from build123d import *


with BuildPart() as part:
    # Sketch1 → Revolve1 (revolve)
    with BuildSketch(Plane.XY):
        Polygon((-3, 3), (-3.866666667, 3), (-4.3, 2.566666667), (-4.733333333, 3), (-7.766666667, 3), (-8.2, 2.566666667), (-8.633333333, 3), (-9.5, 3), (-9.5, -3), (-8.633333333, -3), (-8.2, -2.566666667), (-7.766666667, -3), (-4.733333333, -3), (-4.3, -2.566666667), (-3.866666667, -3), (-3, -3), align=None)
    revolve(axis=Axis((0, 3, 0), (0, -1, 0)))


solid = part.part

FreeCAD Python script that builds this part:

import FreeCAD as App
import Part
import Sketcher

V = App.Vector
Q = App.Units.Quantity


def add_polygon(sketch, points):
    """Adds a closed chain of lines whose ends are joined by coincident constraints."""
    first, n = sketch.GeometryCount, len(points)
    for a, b in zip(points, points[1:] + points[:1]):
        sketch.addGeometry(Part.LineSegment(App.Vector(*a, 0), App.Vector(*b, 0)), False)
    for i in range(n):
        sketch.addConstraint(Sketcher.Constraint("Coincident", first + i, 2, first + (i + 1) % n, 1))

doc = App.newDocument("Part")
params = doc.addObject("Spreadsheet::Sheet", "Params")
for row, (alias, value) in enumerate([
    ("sketch1_height", "6 mm"),
    ("revolution_angle", "360 deg"),
], start=1):
    params.set(f"A{row}", alias)
    params.set(f"B{row}", "=" + value)
    params.setAlias(f"B{row}", alias)

body = doc.addObject("PartDesign::Body", "Body")

# Sketch on XY plane
sketch1 = doc.addObject("Sketcher::SketchObject", "Sketch")
body.addObject(sketch1)
sketch1.AttachmentSupport = (doc.XY_Plane, [""])
sketch1.MapMode = "FlatFace"
add_polygon(sketch1, [(-3, 3), (-3.9, 3), (-4.3, 2.6), (-4.7, 3), (-7.8, 3), (-8.2, 2.6), (-8.6, 3), (-9.5, 3), (-9.5, -3), (-8.6, -3), (-8.2, -2.6), (-7.8, -3), (-4.7, -3), (-4.3, -2.6), (-3.9, -3), (-3, -3)])  # lines 0-15
sketch1.addConstraint(Sketcher.Constraint("Horizontal", 0))
sketch1.addConstraint(Sketcher.Constraint("Horizontal", 3))
sketch1.addConstraint(Sketcher.Constraint("Horizontal", 6))
sketch1.addConstraint(Sketcher.Constraint("Vertical", 7))
sketch1.addConstraint(Sketcher.Constraint("Horizontal", 8))
sketch1.addConstraint(Sketcher.Constraint("Horizontal", 11))
sketch1.addConstraint(Sketcher.Constraint("Horizontal", 14))
sketch1.addConstraint(Sketcher.Constraint("Vertical", 15))
sketch1.addConstraint(Sketcher.Constraint("Symmetric", 5, 2, 8, 2, -1))
sketch1.addConstraint(Sketcher.Constraint("Symmetric", 4, 2, 9, 2, -1))
sketch1.addConstraint(Sketcher.Constraint("Symmetric", 3, 2, 10, 2, -1))
sketch1.addConstraint(Sketcher.Constraint("Symmetric", 1, 2, 12, 2, -1))
sketch1.addConstraint(Sketcher.Constraint("Symmetric", 0, 2, 13, 2, -1))
sketch1.addConstraint(Sketcher.Constraint("Perpendicular", 1, 2))
sketch1.addConstraint(Sketcher.Constraint("Perpendicular", 2, 4))
sketch1.addConstraint(Sketcher.Constraint("Perpendicular", 4, 5))
sketch1.addConstraint(Sketcher.Constraint("Perpendicular", 5, 9))
sketch1.addConstraint(Sketcher.Constraint("Perpendicular", 10, 12))
sketch1.addConstraint(Sketcher.Constraint("Horizontal", 0, 2, 2, 2))
sketch1.addConstraint(Sketcher.Constraint("Horizontal", 1, 2, 4, 2))
sketch1.addConstraint(Sketcher.Constraint("Horizontal", 3, 2, 5, 2))
sketch1.addConstraint(Sketcher.Constraint("Equal", 0, 6))
sketch1.addConstraint(Sketcher.Constraint("DistanceY", 7, 2, 7, 1, Q("6 mm")))
sketch1.addConstraint(Sketcher.Constraint("DistanceX", 14, 2, -1, 1, Q("3 mm")))
sketch1.addConstraint(Sketcher.Constraint("DistanceX", 1, 2, -1, 1, Q("4.3 mm")))
sketch1.addConstraint(Sketcher.Constraint("DistanceX", 4, 2, -1, 1, Q("8.2 mm")))
sketch1.addConstraint(Sketcher.Constraint("DistanceX", 0, 2, 0, 1, Q("0.866667 mm")))
sketch1.setExpression("Constraints[38]", "Params.sketch1_height")
revolution = doc.addObject("PartDesign::Revolution", "Revolution")
body.addObject(revolution)
revolution.Profile = sketch1
revolution.ReferenceAxis = (sketch1, ["V_Axis"])
revolution.setExpression("Angle", "Params.revolution_angle")

doc.recompute()
